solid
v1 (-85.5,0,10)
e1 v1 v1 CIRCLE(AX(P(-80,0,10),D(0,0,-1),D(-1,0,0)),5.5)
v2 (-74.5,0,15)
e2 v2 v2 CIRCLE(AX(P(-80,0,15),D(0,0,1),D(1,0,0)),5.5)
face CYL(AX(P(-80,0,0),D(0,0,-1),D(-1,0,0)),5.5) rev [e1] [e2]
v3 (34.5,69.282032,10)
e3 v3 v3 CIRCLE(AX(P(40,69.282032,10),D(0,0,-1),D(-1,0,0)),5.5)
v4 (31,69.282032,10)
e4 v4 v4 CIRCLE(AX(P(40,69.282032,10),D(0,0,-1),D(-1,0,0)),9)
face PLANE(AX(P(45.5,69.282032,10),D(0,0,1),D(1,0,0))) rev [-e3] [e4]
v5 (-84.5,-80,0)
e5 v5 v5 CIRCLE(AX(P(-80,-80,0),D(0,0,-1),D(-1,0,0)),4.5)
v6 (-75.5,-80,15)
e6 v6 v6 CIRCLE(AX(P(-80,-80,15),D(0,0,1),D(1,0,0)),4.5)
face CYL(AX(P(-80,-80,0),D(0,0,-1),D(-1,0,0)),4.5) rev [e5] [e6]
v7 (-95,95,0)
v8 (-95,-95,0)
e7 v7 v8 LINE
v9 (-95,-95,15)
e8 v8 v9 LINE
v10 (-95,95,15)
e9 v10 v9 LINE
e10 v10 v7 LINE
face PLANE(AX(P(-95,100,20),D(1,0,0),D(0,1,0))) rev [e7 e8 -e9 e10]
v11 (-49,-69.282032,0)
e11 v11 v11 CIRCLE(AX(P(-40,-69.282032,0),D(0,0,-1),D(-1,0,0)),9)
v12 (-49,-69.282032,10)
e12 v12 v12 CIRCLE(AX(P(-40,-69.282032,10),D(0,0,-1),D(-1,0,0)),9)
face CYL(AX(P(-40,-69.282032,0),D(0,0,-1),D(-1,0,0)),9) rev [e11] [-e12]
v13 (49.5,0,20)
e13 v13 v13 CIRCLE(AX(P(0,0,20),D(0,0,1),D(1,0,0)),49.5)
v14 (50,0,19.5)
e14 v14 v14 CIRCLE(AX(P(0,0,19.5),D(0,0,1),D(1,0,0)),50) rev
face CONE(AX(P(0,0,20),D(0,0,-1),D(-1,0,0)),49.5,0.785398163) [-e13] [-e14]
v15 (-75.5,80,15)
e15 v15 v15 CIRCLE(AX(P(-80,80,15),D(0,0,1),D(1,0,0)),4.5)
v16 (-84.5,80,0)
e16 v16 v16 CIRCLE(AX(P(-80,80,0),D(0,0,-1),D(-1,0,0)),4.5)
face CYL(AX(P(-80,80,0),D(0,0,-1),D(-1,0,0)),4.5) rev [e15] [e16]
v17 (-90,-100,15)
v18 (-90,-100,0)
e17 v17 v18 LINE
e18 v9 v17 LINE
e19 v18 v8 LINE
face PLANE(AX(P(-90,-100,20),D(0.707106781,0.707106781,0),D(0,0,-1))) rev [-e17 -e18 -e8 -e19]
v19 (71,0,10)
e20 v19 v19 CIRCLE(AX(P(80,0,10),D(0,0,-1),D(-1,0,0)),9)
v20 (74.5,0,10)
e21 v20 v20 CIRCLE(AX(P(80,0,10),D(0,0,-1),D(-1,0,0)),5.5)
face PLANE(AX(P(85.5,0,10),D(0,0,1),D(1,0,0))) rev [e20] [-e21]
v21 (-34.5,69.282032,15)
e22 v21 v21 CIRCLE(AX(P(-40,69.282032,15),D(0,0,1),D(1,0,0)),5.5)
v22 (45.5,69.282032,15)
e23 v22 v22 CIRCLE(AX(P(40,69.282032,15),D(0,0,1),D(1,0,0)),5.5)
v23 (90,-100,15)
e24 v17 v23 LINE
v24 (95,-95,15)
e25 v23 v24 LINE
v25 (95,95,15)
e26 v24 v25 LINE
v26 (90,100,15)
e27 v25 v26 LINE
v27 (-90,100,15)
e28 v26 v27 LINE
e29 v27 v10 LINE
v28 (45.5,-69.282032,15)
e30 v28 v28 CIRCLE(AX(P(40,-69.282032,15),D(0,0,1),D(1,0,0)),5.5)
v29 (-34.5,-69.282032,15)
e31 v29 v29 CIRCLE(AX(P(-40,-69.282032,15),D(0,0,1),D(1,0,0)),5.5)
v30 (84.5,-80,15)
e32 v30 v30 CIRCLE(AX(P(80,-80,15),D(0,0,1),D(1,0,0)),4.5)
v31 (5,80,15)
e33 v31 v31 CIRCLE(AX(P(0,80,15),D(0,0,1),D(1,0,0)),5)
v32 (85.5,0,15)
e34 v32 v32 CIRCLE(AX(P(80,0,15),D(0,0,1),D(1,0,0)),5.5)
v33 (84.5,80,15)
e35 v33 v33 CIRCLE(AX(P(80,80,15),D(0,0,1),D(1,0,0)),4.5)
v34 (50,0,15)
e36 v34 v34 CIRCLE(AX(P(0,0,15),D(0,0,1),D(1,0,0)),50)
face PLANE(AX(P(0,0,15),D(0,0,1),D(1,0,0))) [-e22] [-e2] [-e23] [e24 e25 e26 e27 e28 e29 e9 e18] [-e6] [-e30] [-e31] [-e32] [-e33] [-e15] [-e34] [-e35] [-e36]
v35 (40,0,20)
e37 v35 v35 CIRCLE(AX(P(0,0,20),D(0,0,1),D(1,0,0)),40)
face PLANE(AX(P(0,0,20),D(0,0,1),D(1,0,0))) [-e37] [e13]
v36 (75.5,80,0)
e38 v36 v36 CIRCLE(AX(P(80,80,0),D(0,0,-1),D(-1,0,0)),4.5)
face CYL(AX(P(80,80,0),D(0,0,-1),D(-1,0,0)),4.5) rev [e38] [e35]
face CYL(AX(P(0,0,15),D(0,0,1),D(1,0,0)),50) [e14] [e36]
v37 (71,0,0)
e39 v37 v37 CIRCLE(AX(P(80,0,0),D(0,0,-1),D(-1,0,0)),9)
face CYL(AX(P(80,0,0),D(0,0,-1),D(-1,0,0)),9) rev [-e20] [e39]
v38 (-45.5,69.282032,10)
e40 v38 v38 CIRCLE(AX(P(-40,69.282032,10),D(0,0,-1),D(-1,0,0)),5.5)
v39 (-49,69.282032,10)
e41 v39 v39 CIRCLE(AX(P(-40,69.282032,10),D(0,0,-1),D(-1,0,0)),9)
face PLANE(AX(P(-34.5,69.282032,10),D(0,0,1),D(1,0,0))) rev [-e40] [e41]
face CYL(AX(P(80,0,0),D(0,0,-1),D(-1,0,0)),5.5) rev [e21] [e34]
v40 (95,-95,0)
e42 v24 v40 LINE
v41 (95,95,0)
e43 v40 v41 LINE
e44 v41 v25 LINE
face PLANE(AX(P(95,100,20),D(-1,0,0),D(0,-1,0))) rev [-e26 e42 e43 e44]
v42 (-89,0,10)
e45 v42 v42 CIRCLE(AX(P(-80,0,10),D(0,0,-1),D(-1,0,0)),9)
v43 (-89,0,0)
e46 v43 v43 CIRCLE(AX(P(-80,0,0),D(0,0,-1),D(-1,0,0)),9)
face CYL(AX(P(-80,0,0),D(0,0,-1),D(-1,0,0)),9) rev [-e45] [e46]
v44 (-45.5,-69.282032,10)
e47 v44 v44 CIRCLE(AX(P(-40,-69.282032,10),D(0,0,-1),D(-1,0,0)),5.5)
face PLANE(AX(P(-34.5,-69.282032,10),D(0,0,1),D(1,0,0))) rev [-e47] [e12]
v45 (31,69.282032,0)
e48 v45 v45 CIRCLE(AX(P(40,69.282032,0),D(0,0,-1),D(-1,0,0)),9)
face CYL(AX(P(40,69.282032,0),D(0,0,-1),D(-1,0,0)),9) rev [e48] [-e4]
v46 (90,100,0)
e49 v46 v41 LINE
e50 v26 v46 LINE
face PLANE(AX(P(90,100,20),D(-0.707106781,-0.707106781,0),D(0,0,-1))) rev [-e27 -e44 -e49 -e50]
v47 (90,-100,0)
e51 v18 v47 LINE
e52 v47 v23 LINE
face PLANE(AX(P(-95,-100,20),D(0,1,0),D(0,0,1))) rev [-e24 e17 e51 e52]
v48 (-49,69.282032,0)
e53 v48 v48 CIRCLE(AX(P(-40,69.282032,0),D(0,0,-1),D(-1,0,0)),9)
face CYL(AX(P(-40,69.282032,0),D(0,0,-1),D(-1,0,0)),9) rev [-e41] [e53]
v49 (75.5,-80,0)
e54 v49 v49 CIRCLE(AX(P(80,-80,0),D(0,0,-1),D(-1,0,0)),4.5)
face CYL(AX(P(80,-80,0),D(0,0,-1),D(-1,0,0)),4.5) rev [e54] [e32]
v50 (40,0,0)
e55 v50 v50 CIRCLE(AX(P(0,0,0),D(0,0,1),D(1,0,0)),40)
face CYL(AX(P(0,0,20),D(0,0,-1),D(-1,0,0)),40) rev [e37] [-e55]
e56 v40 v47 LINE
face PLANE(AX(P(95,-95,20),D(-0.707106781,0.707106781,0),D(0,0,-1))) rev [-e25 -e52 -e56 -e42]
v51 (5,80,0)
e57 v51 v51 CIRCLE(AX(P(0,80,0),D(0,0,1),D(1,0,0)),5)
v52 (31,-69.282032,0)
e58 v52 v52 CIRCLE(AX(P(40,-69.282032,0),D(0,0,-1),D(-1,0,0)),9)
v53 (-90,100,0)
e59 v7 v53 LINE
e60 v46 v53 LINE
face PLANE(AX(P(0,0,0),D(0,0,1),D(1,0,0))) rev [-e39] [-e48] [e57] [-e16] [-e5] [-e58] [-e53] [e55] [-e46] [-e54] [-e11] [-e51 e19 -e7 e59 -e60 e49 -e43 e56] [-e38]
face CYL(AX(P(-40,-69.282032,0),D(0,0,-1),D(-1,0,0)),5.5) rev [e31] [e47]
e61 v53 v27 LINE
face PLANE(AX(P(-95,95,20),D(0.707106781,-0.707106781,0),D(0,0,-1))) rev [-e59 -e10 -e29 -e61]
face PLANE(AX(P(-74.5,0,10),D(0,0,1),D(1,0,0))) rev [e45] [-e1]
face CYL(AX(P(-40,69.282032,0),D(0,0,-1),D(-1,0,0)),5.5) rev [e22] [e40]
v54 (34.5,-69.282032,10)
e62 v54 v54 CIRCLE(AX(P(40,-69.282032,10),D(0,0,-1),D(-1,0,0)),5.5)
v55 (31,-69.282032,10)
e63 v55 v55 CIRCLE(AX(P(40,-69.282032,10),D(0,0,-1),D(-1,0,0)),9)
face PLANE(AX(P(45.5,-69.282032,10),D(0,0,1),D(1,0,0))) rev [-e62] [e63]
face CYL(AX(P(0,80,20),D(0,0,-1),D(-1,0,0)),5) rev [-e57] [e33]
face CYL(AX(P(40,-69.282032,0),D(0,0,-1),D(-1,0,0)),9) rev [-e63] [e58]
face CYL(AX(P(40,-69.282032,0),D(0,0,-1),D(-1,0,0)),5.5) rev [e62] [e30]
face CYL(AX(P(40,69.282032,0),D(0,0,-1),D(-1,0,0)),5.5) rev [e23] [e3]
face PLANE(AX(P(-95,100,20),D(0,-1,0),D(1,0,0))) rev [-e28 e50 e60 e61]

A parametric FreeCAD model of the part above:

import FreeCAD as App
import Part
import Sketcher

V = App.Vector
Q = App.Units.Quantity


def edges_at(feature, points):
    """Names of the edges that pass closest to the given points."""
    edges = feature.Shape.Edges
    near = lambda p: min(range(len(edges)), key=lambda i: edges[i].distToShape(Part.Vertex(*p))[0])
    return sorted({f"Edge{near(p) + 1}" for p in points})

doc = App.newDocument("Part")
body = doc.addObject("PartDesign::Body", "Body")

sketch1 = doc.addObject("Sketcher::SketchObject", "Sketch")
body.addObject(sketch1)
sketch1.AttachmentSupport = (doc.XY_Plane, [""])
sketch1.MapMode = "FlatFace"
sketch1.addGeometry([
    Part.LineSegment(V(-95, 100, 0), V(-95, -100, 0)),
    Part.LineSegment(V(-95, -100, 0), V(95, -100, 0)),
    Part.LineSegment(V(95, -100, 0), V(95, 100, 0)),
    Part.LineSegment(V(95, 100, 0), V(-95, 100, 0)),
    Part.Circle(V(-40, -69.282032, 0), V(0, 0, 1), 5),
    Part.Circle(V(-80, 0, 0), V(0, 0, 1), 5),
    Part.Circle(V(40, -69.282032, 0), V(0, 0, 1), 5),
    Part.Circle(V(0, 0, 0), V(0, 0, 1), 40),
    Part.Circle(V(80, 0, 0), V(0, 0, 1), 5),
    Part.Circle(V(-40, 69.282032, 0), V(0, 0, 1), 5),
    Part.Circle(V(0, 80, 0), V(0, 0, 1), 5),
    Part.Circle(V(40, 69.282032, 0), V(0, 0, 1), 5),
], False)
sketch1.addConstraint([
    Sketcher.Constraint("Coincident", 0, 2, 1, 1),
    Sketcher.Constraint("Coincident", 1, 2, 2, 1),
    Sketcher.Constraint("Coincident", 2, 2, 3, 1),
    Sketcher.Constraint("Coincident", 3, 2, 0, 1),
    Sketcher.Constraint("Vertical", 0),
    Sketcher.Constraint("Horizontal", 1),
    Sketcher.Constraint("Vertical", 2),
    Sketcher.Constraint("Horizontal", 3),
    Sketcher.Constraint("Coincident", 7, 3, -1, 1),
    Sketcher.Constraint("Equal", 4, 5),
    Sketcher.Constraint("Equal", 5, 6),
    Sketcher.Constraint("Equal", 6, 8),
    Sketcher.Constraint("Equal", 8, 9),
    Sketcher.Constraint("Equal", 9, 10),
    Sketcher.Constraint("Equal", 10, 11),
    Sketcher.Constraint("Symmetric", 5, 3, 8, 3, -1, 1),
    Sketcher.Constraint("Symmetric", 6, 3, 9, 3, -1, 1),
    Sketcher.Constraint("Symmetric", 4, 3, 11, 3, -1, 1),
    Sketcher.Constraint("Symmetric", 0, 2, 2, 2, -1, 1),
    Sketcher.Constraint("Symmetric", 4, 3, 6, 3, -2),
    Sketcher.Constraint("PointOnObject", 5, 3, -1),
    Sketcher.Constraint("PointOnObject", 10, 3, -2),
    Sketcher.Constraint("Diameter", 4, Q("10 mm")),
    Sketcher.Constraint("Diameter", 7, Q("80 mm")),
    Sketcher.Constraint("DistanceX", 1, 1, 1, 2, Q("190 mm")),
    Sketcher.Constraint("DistanceY", 0, 2, 0, 1, Q("200 mm")),
    Sketcher.Constraint("DistanceX", 4, 3, -1, 1, Q("40 mm")),
    Sketcher.Constraint("DistanceX", 5, 3, -1, 1, Q("80 mm")),
    Sketcher.Constraint("DistanceY", -1, 1, 10, 3, Q("80 mm")),
    Sketcher.Constraint("DistanceY", 4, 3, -1, 1, Q("69.282032 mm")),
])
pad1 = doc.addObject("PartDesign::Pad", "Pad")
body.addObject(pad1)
pad1.Profile = sketch1
pad1.Length = 20

sketch2 = doc.addObject("Sketcher::SketchObject", "Sketch001")
body.addObject(sketch2)
sketch2.AttachmentSupport = (doc.XY_Plane, [""])
sketch2.MapMode = "FlatFace"
sketch2.AttachmentOffset = App.Placement(V(0, 0, 20), App.Rotation())
sketch2.addGeometry([
    Part.LineSegment(V(-123.659, 128.659, 0), V(-123.659, -128.659, 0)),
    Part.LineSegment(V(-123.659, -128.659, 0), V(123.659, -128.659, 0)),
    Part.LineSegment(V(123.659, -128.659, 0), V(123.659, 128.659, 0)),
    Part.LineSegment(V(123.659, 128.659, 0), V(-123.659, 128.659, 0)),
    Part.Circle(V(0, 0, 0), V(0, 0, 1), 50),
], False)
sketch2.addConstraint([
    Sketcher.Constraint("Coincident", 0, 2, 1, 1),
    Sketcher.Constraint("Coincident", 1, 2, 2, 1),
    Sketcher.Constraint("Coincident", 2, 2, 3, 1),
    Sketcher.Constraint("Coincident", 3, 2, 0, 1),
    Sketcher.Constraint("Vertical", 0),
    Sketcher.Constraint("Horizontal", 1),
    Sketcher.Constraint("Vertical", 2),
    Sketcher.Constraint("Horizontal", 3),
    Sketcher.Constraint("Coincident", 4, 3, -1, 1),
    Sketcher.Constraint("Symmetric", 0, 2, 2, 2, -1, 1),
    Sketcher.Constraint("Diameter", 4, Q("100 mm")),
    Sketcher.Constraint("DistanceX", 1, 1, 1, 2, Q("247.318 mm")),
    Sketcher.Constraint("DistanceY", 0, 2, 0, 1, Q("257.318 mm")),
])
pocket1 = doc.addObject("PartDesign::Pocket", "Pocket")
body.addObject(pocket1)
pocket1.Profile = sketch2
pocket1.Length = 5
doc.recompute()

chamfer = doc.addObject("PartDesign::Chamfer", "Chamfer")
body.addObject(chamfer)
chamfer.Base = (pocket1, edges_at(pocket1, [(-50, 0, 20)]))
chamfer.Size = 0.5
doc.recompute()

chamfer2 = doc.addObject("PartDesign::Chamfer", "Chamfer001")
body.addObject(chamfer2)
chamfer2.Base = (chamfer, edges_at(chamfer, [
    (95, -100, 7.5),
    (-95, -100, 7.5),
    (-95, 100, 7.5),
    (95, 100, 7.5),
]))
chamfer2.Size = 5

sketch3 = doc.addObject("Sketcher::SketchObject", "Sketch002")
body.addObject(sketch3)
sketch3.AttachmentSupport = (doc.XY_Plane, [""])
sketch3.MapMode = "FlatFace"
sketch3.AttachmentOffset = App.Placement(V(0, 0, 15), App.Rotation())
sketch3.addGeometry([
    Part.Circle(V(-80, 80, 0), V(0, 0, 1), 4.375),
    Part.Circle(V(80, 80, 0), V(0, 0, 1), 4.375),
    Part.Circle(V(80, -80, 0), V(0, 0, 1), 4.375),
    Part.Circle(V(-80, -80, 0), V(0, 0, 1), 4.375),
], False)
sketch3.addConstraint([
    Sketcher.Constraint("Equal", 0, 1),
    Sketcher.Constraint("Equal", 1, 2),
    Sketcher.Constraint("Equal", 2, 3),
    Sketcher.Constraint("Symmetric", 0, 3, 2, 3, -1, 1),
    Sketcher.Constraint("Symmetric", 1, 3, 3, 3, -1, 1),
    Sketcher.Constraint("Symmetric", 0, 3, 1, 3, -2),
    Sketcher.Constraint("Diameter", 0, Q("8.75 mm")),
    Sketcher.Constraint("DistanceX", 0, 3, -1, 1, Q("80 mm")),
    Sketcher.Constraint("DistanceY", -1, 1, 0, 3, Q("80 mm")),
])
pocket2 = doc.addObject("PartDesign::Pocket", "Pocket001")
body.addObject(pocket2)
pocket2.Profile = sketch3
pocket2.Type = "ThroughAll"
pocket2.Midplane = True

sketch4 = doc.addObject("Sketcher::SketchObject", "Sketch003")
body.addObject(sketch4)
sketch4.AttachmentSupport = (doc.XY_Plane, [""])
sketch4.MapMode = "FlatFace"
sketch4.addGeometry([
    Part.Circle(V(40, 69.282032, 0), V(0, 0, 1), 5.5),
    Part.Circle(V(80, 0, 0), V(0, 0, 1), 5.5),
    Part.Circle(V(-80, 0, 0), V(0, 0, 1), 5.5),
    Part.Circle(V(-40, -69.282032, 0), V(0, 0, 1), 5.5),
    Part.Circle(V(40, -69.282032, 0), V(0, 0, 1), 5.5),
    Part.Circle(V(-40, 69.282032, 0), V(0, 0, 1), 5.5),
], False)
sketch4.addConstraint([
    Sketcher.Constraint("Equal", 0, 1),
    Sketcher.Constraint("Equal", 1, 2),
    Sketcher.Constraint("Equal", 2, 3),
    Sketcher.Constraint("Equal", 3, 4),
    Sketcher.Constraint("Equal", 4, 5),
    Sketcher.Constraint("Symmetric", 1, 3, 2, 3, -1, 1),
    Sketcher.Constraint("Symmetric", 0, 3, 3, 3, -1, 1),
    Sketcher.Constraint("Symmetric", 4, 3, 5, 3, -1, 1),
    Sketcher.Constraint("Symmetric", 3, 3, 4, 3, -2),
    Sketcher.Constraint("PointOnObject", 1, 3, -1),
    Sketcher.Constraint("Diameter", 0, Q("11 mm")),
    Sketcher.Constraint("DistanceX", -1, 1, 0, 3, Q("40 mm")),
    Sketcher.Constraint("DistanceX", -1, 1, 1, 3, Q("80 mm")),
    Sketcher.Constraint("DistanceY", -1, 1, 0, 3, Q("69.282032 mm")),
])
doc.recompute()
hole = doc.addObject("PartDesign::Hole", "Hole")
body.addObject(hole)
hole.Profile = sketch4
hole.ThreadType = "None"
hole.Diameter = 11
hole.DepthType = "ThroughAll"
hole.HoleCutType = "Counterbore"
hole.HoleCutDiameter = 18
hole.HoleCutDepth = 10
hole.Reversed = True

sketch5 = doc.addObject("Sketcher::SketchObject", "Sketch004")
body.addObject(sketch5)
sketch5.AttachmentSupport = (doc.XY_Plane, [""])
sketch5.MapMode = "FlatFace"
sketch5.addGeometry([
    Part.Circle(V(80, 80, 0), V(0, 0, 1), 4.5),
    Part.Circle(V(-80, 80, 0), V(0, 0, 1), 4.5),
    Part.Circle(V(80, -80, 0), V(0, 0, 1), 4.5),
    Part.Circle(V(-80, -80, 0), V(0, 0, 1), 4.5),
], False)
sketch5.addConstraint([
    Sketcher.Constraint("Equal", 0, 1),
    Sketcher.Constraint("Equal", 1, 2),
    Sketcher.Constraint("Equal", 2, 3),
    Sketcher.Constraint("Symmetric", 1, 3, 2, 3, -1, 1),
    Sketcher.Constraint("Symmetric", 0, 3, 3, 3, -1, 1),
    Sketcher.Constraint("Symmetric", 0, 3, 1, 3, -2),
    Sketcher.Constraint("Diameter", 0, Q("9 mm")),
    Sketcher.Constraint("DistanceX", -1, 1, 0, 3, Q("80 mm")),
    Sketcher.Constraint("DistanceY", -1, 1, 0, 3, Q("80 mm")),
])
doc.recompute()
hole2 = doc.addObject("PartDesign::Hole", "Hole001")
body.addObject(hole2)
hole2.Profile = sketch5
hole2.ThreadType = "None"
hole2.Diameter = 9
hole2.DepthType = "ThroughAll"
hole2.Reversed = True

doc.recompute()
